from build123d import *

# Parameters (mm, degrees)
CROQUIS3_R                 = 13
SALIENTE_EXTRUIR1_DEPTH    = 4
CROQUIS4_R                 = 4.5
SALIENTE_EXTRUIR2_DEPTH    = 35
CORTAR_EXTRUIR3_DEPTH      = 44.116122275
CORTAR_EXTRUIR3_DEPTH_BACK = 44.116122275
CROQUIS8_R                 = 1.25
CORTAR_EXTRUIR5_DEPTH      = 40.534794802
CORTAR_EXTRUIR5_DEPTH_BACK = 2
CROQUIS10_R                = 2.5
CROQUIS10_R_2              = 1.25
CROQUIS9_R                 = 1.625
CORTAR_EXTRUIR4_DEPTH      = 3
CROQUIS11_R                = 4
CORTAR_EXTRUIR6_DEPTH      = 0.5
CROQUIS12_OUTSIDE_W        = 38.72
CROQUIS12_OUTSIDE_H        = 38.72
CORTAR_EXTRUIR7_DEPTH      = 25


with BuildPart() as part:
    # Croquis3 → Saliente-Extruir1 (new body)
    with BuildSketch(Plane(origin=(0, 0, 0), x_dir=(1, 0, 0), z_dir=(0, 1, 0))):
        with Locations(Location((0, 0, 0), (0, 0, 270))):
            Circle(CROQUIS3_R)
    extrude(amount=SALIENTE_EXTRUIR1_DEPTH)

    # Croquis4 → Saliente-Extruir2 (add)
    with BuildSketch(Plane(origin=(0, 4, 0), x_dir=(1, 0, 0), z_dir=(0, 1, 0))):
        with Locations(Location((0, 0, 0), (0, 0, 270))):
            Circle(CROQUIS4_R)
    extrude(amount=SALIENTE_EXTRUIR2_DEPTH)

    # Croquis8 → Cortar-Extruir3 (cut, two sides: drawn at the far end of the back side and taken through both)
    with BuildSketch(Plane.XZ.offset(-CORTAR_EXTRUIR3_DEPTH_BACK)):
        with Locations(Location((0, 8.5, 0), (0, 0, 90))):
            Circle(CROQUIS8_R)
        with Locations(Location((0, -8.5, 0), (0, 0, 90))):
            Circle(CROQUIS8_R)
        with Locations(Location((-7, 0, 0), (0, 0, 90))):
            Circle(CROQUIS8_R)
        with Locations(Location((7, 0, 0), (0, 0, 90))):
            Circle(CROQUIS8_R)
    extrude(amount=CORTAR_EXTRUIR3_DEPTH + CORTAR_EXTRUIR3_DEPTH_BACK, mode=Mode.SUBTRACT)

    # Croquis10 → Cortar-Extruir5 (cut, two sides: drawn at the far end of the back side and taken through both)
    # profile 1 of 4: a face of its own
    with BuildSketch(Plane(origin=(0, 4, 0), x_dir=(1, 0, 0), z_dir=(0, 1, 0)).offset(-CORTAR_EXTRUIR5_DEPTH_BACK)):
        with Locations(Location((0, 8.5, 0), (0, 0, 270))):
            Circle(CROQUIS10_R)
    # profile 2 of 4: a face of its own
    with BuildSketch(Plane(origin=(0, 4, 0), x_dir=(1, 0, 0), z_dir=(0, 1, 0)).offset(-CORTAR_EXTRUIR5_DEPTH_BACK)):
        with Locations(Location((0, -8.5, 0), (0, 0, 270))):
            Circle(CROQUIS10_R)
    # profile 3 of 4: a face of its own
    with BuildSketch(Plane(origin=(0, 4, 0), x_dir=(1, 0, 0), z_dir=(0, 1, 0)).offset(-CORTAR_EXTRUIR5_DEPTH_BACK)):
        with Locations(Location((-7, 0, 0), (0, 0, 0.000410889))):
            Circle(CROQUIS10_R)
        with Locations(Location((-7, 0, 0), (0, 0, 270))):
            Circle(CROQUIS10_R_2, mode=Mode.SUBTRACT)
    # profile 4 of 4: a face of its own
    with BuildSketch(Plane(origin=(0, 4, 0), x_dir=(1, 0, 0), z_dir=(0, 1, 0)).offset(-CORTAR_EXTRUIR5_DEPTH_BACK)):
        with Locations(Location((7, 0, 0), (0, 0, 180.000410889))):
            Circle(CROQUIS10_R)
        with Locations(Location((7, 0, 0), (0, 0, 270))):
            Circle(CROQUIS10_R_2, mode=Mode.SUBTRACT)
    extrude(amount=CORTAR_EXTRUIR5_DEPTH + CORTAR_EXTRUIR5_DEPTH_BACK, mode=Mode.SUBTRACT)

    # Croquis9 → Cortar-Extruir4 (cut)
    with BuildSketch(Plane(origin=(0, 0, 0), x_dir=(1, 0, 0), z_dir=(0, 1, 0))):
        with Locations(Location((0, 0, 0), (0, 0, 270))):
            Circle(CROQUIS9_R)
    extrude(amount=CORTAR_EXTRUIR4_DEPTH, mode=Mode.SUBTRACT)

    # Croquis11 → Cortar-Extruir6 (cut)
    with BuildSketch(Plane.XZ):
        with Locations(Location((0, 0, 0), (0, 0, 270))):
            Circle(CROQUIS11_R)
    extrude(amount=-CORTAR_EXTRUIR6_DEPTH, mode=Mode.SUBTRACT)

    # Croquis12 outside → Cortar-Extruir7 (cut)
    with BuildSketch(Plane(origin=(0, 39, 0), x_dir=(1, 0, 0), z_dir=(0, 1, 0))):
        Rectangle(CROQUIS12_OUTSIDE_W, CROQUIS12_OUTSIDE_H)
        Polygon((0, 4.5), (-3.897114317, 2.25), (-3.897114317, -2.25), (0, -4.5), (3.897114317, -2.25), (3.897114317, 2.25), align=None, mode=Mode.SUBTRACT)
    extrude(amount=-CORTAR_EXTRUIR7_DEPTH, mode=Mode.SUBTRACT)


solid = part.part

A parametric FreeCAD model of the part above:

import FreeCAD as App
import Part
import Sketcher
from FreeCAD import Vector
Q = App.Units.Quantity


def add_polygon(sketch, points):
    """Adds a closed chain of lines whose ends are joined by coincident constraints."""
    first, n = sketch.GeometryCount, len(points)
    for a, b in zip(points, points[1:] + points[:1]):
        sketch.addGeometry(Part.LineSegment(App.Vector(*a, 0), App.Vector(*b, 0)), False)
    for i in range(n):
        sketch.addConstraint(Sketcher.Constraint("Coincident", first + i, 2, first + (i + 1) % n, 1))

doc = App.newDocument("Part")
body = doc.addObject("PartDesign::Body", "Body")

# Sketch on XZ plane
sketch1 = body.newObject("Sketcher::SketchObject", "Sketch")
sketch1.AttachmentSupport = (doc.getObject("XZ_Plane"), [""])
sketch1.MapMode = "FlatFace"
sketch1.addGeometry(Part.Circle(Vector(0, 0, 0), Vector(0, 0, 1), 13), False)
sketch1.addConstraint([
    Sketcher.Constraint("Coincident", 0, 3, -1, 1),
    Sketcher.Constraint("Diameter", 0, 26.0),
])
pad1 = body.newObject("PartDesign::Pad", "Pad")
pad1.Profile = sketch1
pad1.Length = 4
pad1.Reversed = True

# Sketch on XZ plane
sketch2 = body.newObject("Sketcher::SketchObject", "Sketch001")
sketch2.AttachmentSupport = (doc.getObject("XZ_Plane"), [""])
sketch2.MapMode = "FlatFace"
sketch2.AttachmentOffset = App.Placement(Vector(0, 0, -4), App.Rotation())
sketch2.addGeometry(Part.Circle(Vector(0, 0, 0), Vector(0, 0, 1), 4.5), False)
sketch2.addConstraint([
    Sketcher.Constraint("Coincident", 0, 3, -1, 1),
    Sketcher.Constraint("Diameter", 0, 9.0),
])
pad2 = body.newObject("PartDesign::Pad", "Pad001")
pad2.Profile = sketch2
pad2.Length = 35
pad2.Reversed = True

# Sketch on XZ plane
sketch3 = body.newObject("Sketcher::SketchObject", "Sketch002")
sketch3.AttachmentSupport = (doc.getObject("XZ_Plane"), [""])
sketch3.MapMode = "FlatFace"
sketch3.addGeometry([
    Part.Circle(Vector(0, 8.5, 0), Vector(0, 0, 1), 1.2),
    Part.Circle(Vector(0, -8.5, 0), Vector(0, 0, 1), 1.2),
    Part.Circle(Vector(-7, 0, 0), Vector(0, 0, 1), 1.2),
    Part.Circle(Vector(7, 0, 0), Vector(0, 0, 1), 1.2),
], False)
sketch3.addConstraint([
    Sketcher.Constraint("Equal", 0, 1),
    Sketcher.Constraint("Equal", 1, 2),
    Sketcher.Constraint("Equal", 2, 3),
    Sketcher.Constraint("Symmetric", 0, 3, 1, 3, -1, 1),
    Sketcher.Constraint("Symmetric", 2, 3, 3, 3, -1, 1),
    Sketcher.Constraint("PointOnObject", 0, 3, -2),
    Sketcher.Constraint("PointOnObject", 2, 3, -1),
    Sketcher.Constraint("Diameter", 0, 2.5),
    Sketcher.Constraint("DistanceX", 2, 3, -1, 1, 7.0),
    Sketcher.Constraint("DistanceY", 1, 3, 0, 3, 17.0),
])
pocket1 = body.newObject("PartDesign::Pocket", "Pocket")
pocket1.Profile = sketch3
pocket1.Type = "ThroughAll"
pocket1.Midplane = True

# Sketch on XZ plane
sketch4 = body.newObject("Sketcher::SketchObject", "Sketch003")
sketch4.AttachmentSupport = (doc.getObject("XZ_Plane"), [""])
sketch4.MapMode = "FlatFace"
sketch4.AttachmentOffset = App.Placement(Vector(0, 0, -4), App.Rotation())
sketch4.addGeometry([
    Part.Circle(Vector(0, -8.5, 0), Vector(0, 0, 1), 2.5),  # 0
    Part.Circle(Vector(0, 8.5, 0), Vector(0, 0, 1), 2.5),  # 1
    Part.Circle(Vector(-7, 0, 0), Vector(0, 0, 1), 2.5),  # 2
    Part.Circle(Vector(-7, 0, 0), Vector(0, 0, 1), 1.2),  # 3
    Part.Circle(Vector(7, 0, 0), Vector(0, 0, 1), 2.5),  # 4
    Part.Circle(Vector(7, 0, 0), Vector(0, 0, 1), 1.2),  # 5
], False)
sketch4.addConstraint([
    Sketcher.Constraint("Coincident", 3, 3, 2, 3),
    Sketcher.Constraint("Coincident", 5, 3, 4, 3),
    Sketcher.Constraint("Equal", 0, 1),
    Sketcher.Constraint("Equal", 1, 2),
    Sketcher.Constraint("Equal", 2, 4),
    Sketcher.Constraint("Equal", 3, 5),
    Sketcher.Constraint("Symmetric", 0, 3, 1, 3, -1, 1),
    Sketcher.Constraint("Symmetric", 2, 3, 4, 3, -1, 1),
    Sketcher.Constraint("PointOnObject", 0, 3, -2),
    Sketcher.Constraint("PointOnObject", 2, 3, -1),
    Sketcher.Constraint("Diameter", 0, 5.0),
    Sketcher.Constraint("Diameter", 3, 2.5),
    Sketcher.Constraint("DistanceX", 2, 3, -1, 1, 7.0),
    Sketcher.Constraint("DistanceY", 0, 3, 1, 3, 17.0),
])
pocket2 = body.newObject("PartDesign::Pocket", "Pocket001")
pocket2.Profile = sketch4
pocket2.Type = "TwoLengths"
pocket2.Length = 40.534795
pocket2.Length2 = 2

# Sketch on XZ plane
sketch5 = body.newObject("Sketcher::SketchObject", "Sketch004")
sketch5.AttachmentSupport = (doc.getObject("XZ_Plane"), [""])
sketch5.MapMode = "FlatFace"
sketch5.addGeometry(Part.Circle(Vector(0, 0, 0), Vector(0, 0, 1), 1.6), False)
sketch5.addConstraint([
    Sketcher.Constraint("Coincident", 0, 3, -1, 1),
    Sketcher.Constraint("Diameter", 0, 3.25),
])
pocket3 = body.newObject("PartDesign::Pocket", "Pocket002")
pocket3.Profile = sketch5
pocket3.Length = 3

# Sketch on XZ plane
sketch6 = body.newObject("Sketcher::SketchObject", "Sketch005")
sketch6.AttachmentSupport = (doc.getObject("XZ_Plane"), [""])
sketch6.MapMode = "FlatFace"
sketch6.addGeometry(Part.Circle(Vector(0, 0, 0), Vector(0, 0, 1), 4), False)
sketch6.addConstraint([
    Sketcher.Constraint("Coincident", 0, 3, -1, 1),
    Sketcher.Constraint("Diameter", 0, 8.0),
])
pocket4 = body.newObject("PartDesign::Pocket", "Pocket003")
pocket4.Profile = sketch6
pocket4.Length = 0.5

# Sketch on XZ plane
sketch7 = body.newObject("Sketcher::SketchObject", "Sketch006")
sketch7.AttachmentSupport = (doc.getObject("XZ_Plane"), [""])
sketch7.MapMode = "FlatFace"
sketch7.AttachmentOffset = App.Placement(Vector(0, 0, -39), App.Rotation())
add_polygon(sketch7, [(-19.4, -19.4), (-19.4, 19.4), (19.4, 19.4), (19.4, -19.4)])  # lines 0-3
add_polygon(sketch7, [(-3.9, -2.2), (0, -4.5), (3.9, -2.2), (3.9, 2.2), (0, 4.5), (-3.9, 2.2)])  # lines 4-9
sketch7.addConstraint([
    Sketcher.Constraint("Vertical", 0),
    Sketcher.Constraint("Horizontal", 1),
    Sketcher.Constraint("Vertical", 2),
    Sketcher.Constraint("Horizontal", 3),
    Sketcher.Constraint("Vertical", 6),
    Sketcher.Constraint("Vertical", 9),
    Sketcher.Constraint("Symmetric", 0, 2, 2, 2, -1, 1),
    Sketcher.Constraint("Symmetric", 4, 2, 7, 2, -1, 1),
    Sketcher.Constraint("Symmetric", 5, 2, 8, 2, -1, 1),
    Sketcher.Constraint("PointOnObject", 4, 2, -2),
    Sketcher.Constraint("Parallel", 4, 7),
    Sketcher.Constraint("Horizontal", 6, 2, 8, 2),
    Sketcher.Constraint("Equal", 3, 0),
    Sketcher.Constraint("Angle", 4, Q("-30 deg")),
    Sketcher.Constraint("DistanceY", 6, 1, 6, 2, 4.5),
    Sketcher.Constraint("DistanceY", 4, 2, 7, 2, 9.0),
    Sketcher.Constraint("DistanceX", 1, 1, 1, 2, 38.72),
])
pocket5 = body.newObject("PartDesign::Pocket", "Pocket004")
pocket5.Profile = sketch7
pocket5.Length = 25
pocket5.Reversed = True

doc.recompute()
